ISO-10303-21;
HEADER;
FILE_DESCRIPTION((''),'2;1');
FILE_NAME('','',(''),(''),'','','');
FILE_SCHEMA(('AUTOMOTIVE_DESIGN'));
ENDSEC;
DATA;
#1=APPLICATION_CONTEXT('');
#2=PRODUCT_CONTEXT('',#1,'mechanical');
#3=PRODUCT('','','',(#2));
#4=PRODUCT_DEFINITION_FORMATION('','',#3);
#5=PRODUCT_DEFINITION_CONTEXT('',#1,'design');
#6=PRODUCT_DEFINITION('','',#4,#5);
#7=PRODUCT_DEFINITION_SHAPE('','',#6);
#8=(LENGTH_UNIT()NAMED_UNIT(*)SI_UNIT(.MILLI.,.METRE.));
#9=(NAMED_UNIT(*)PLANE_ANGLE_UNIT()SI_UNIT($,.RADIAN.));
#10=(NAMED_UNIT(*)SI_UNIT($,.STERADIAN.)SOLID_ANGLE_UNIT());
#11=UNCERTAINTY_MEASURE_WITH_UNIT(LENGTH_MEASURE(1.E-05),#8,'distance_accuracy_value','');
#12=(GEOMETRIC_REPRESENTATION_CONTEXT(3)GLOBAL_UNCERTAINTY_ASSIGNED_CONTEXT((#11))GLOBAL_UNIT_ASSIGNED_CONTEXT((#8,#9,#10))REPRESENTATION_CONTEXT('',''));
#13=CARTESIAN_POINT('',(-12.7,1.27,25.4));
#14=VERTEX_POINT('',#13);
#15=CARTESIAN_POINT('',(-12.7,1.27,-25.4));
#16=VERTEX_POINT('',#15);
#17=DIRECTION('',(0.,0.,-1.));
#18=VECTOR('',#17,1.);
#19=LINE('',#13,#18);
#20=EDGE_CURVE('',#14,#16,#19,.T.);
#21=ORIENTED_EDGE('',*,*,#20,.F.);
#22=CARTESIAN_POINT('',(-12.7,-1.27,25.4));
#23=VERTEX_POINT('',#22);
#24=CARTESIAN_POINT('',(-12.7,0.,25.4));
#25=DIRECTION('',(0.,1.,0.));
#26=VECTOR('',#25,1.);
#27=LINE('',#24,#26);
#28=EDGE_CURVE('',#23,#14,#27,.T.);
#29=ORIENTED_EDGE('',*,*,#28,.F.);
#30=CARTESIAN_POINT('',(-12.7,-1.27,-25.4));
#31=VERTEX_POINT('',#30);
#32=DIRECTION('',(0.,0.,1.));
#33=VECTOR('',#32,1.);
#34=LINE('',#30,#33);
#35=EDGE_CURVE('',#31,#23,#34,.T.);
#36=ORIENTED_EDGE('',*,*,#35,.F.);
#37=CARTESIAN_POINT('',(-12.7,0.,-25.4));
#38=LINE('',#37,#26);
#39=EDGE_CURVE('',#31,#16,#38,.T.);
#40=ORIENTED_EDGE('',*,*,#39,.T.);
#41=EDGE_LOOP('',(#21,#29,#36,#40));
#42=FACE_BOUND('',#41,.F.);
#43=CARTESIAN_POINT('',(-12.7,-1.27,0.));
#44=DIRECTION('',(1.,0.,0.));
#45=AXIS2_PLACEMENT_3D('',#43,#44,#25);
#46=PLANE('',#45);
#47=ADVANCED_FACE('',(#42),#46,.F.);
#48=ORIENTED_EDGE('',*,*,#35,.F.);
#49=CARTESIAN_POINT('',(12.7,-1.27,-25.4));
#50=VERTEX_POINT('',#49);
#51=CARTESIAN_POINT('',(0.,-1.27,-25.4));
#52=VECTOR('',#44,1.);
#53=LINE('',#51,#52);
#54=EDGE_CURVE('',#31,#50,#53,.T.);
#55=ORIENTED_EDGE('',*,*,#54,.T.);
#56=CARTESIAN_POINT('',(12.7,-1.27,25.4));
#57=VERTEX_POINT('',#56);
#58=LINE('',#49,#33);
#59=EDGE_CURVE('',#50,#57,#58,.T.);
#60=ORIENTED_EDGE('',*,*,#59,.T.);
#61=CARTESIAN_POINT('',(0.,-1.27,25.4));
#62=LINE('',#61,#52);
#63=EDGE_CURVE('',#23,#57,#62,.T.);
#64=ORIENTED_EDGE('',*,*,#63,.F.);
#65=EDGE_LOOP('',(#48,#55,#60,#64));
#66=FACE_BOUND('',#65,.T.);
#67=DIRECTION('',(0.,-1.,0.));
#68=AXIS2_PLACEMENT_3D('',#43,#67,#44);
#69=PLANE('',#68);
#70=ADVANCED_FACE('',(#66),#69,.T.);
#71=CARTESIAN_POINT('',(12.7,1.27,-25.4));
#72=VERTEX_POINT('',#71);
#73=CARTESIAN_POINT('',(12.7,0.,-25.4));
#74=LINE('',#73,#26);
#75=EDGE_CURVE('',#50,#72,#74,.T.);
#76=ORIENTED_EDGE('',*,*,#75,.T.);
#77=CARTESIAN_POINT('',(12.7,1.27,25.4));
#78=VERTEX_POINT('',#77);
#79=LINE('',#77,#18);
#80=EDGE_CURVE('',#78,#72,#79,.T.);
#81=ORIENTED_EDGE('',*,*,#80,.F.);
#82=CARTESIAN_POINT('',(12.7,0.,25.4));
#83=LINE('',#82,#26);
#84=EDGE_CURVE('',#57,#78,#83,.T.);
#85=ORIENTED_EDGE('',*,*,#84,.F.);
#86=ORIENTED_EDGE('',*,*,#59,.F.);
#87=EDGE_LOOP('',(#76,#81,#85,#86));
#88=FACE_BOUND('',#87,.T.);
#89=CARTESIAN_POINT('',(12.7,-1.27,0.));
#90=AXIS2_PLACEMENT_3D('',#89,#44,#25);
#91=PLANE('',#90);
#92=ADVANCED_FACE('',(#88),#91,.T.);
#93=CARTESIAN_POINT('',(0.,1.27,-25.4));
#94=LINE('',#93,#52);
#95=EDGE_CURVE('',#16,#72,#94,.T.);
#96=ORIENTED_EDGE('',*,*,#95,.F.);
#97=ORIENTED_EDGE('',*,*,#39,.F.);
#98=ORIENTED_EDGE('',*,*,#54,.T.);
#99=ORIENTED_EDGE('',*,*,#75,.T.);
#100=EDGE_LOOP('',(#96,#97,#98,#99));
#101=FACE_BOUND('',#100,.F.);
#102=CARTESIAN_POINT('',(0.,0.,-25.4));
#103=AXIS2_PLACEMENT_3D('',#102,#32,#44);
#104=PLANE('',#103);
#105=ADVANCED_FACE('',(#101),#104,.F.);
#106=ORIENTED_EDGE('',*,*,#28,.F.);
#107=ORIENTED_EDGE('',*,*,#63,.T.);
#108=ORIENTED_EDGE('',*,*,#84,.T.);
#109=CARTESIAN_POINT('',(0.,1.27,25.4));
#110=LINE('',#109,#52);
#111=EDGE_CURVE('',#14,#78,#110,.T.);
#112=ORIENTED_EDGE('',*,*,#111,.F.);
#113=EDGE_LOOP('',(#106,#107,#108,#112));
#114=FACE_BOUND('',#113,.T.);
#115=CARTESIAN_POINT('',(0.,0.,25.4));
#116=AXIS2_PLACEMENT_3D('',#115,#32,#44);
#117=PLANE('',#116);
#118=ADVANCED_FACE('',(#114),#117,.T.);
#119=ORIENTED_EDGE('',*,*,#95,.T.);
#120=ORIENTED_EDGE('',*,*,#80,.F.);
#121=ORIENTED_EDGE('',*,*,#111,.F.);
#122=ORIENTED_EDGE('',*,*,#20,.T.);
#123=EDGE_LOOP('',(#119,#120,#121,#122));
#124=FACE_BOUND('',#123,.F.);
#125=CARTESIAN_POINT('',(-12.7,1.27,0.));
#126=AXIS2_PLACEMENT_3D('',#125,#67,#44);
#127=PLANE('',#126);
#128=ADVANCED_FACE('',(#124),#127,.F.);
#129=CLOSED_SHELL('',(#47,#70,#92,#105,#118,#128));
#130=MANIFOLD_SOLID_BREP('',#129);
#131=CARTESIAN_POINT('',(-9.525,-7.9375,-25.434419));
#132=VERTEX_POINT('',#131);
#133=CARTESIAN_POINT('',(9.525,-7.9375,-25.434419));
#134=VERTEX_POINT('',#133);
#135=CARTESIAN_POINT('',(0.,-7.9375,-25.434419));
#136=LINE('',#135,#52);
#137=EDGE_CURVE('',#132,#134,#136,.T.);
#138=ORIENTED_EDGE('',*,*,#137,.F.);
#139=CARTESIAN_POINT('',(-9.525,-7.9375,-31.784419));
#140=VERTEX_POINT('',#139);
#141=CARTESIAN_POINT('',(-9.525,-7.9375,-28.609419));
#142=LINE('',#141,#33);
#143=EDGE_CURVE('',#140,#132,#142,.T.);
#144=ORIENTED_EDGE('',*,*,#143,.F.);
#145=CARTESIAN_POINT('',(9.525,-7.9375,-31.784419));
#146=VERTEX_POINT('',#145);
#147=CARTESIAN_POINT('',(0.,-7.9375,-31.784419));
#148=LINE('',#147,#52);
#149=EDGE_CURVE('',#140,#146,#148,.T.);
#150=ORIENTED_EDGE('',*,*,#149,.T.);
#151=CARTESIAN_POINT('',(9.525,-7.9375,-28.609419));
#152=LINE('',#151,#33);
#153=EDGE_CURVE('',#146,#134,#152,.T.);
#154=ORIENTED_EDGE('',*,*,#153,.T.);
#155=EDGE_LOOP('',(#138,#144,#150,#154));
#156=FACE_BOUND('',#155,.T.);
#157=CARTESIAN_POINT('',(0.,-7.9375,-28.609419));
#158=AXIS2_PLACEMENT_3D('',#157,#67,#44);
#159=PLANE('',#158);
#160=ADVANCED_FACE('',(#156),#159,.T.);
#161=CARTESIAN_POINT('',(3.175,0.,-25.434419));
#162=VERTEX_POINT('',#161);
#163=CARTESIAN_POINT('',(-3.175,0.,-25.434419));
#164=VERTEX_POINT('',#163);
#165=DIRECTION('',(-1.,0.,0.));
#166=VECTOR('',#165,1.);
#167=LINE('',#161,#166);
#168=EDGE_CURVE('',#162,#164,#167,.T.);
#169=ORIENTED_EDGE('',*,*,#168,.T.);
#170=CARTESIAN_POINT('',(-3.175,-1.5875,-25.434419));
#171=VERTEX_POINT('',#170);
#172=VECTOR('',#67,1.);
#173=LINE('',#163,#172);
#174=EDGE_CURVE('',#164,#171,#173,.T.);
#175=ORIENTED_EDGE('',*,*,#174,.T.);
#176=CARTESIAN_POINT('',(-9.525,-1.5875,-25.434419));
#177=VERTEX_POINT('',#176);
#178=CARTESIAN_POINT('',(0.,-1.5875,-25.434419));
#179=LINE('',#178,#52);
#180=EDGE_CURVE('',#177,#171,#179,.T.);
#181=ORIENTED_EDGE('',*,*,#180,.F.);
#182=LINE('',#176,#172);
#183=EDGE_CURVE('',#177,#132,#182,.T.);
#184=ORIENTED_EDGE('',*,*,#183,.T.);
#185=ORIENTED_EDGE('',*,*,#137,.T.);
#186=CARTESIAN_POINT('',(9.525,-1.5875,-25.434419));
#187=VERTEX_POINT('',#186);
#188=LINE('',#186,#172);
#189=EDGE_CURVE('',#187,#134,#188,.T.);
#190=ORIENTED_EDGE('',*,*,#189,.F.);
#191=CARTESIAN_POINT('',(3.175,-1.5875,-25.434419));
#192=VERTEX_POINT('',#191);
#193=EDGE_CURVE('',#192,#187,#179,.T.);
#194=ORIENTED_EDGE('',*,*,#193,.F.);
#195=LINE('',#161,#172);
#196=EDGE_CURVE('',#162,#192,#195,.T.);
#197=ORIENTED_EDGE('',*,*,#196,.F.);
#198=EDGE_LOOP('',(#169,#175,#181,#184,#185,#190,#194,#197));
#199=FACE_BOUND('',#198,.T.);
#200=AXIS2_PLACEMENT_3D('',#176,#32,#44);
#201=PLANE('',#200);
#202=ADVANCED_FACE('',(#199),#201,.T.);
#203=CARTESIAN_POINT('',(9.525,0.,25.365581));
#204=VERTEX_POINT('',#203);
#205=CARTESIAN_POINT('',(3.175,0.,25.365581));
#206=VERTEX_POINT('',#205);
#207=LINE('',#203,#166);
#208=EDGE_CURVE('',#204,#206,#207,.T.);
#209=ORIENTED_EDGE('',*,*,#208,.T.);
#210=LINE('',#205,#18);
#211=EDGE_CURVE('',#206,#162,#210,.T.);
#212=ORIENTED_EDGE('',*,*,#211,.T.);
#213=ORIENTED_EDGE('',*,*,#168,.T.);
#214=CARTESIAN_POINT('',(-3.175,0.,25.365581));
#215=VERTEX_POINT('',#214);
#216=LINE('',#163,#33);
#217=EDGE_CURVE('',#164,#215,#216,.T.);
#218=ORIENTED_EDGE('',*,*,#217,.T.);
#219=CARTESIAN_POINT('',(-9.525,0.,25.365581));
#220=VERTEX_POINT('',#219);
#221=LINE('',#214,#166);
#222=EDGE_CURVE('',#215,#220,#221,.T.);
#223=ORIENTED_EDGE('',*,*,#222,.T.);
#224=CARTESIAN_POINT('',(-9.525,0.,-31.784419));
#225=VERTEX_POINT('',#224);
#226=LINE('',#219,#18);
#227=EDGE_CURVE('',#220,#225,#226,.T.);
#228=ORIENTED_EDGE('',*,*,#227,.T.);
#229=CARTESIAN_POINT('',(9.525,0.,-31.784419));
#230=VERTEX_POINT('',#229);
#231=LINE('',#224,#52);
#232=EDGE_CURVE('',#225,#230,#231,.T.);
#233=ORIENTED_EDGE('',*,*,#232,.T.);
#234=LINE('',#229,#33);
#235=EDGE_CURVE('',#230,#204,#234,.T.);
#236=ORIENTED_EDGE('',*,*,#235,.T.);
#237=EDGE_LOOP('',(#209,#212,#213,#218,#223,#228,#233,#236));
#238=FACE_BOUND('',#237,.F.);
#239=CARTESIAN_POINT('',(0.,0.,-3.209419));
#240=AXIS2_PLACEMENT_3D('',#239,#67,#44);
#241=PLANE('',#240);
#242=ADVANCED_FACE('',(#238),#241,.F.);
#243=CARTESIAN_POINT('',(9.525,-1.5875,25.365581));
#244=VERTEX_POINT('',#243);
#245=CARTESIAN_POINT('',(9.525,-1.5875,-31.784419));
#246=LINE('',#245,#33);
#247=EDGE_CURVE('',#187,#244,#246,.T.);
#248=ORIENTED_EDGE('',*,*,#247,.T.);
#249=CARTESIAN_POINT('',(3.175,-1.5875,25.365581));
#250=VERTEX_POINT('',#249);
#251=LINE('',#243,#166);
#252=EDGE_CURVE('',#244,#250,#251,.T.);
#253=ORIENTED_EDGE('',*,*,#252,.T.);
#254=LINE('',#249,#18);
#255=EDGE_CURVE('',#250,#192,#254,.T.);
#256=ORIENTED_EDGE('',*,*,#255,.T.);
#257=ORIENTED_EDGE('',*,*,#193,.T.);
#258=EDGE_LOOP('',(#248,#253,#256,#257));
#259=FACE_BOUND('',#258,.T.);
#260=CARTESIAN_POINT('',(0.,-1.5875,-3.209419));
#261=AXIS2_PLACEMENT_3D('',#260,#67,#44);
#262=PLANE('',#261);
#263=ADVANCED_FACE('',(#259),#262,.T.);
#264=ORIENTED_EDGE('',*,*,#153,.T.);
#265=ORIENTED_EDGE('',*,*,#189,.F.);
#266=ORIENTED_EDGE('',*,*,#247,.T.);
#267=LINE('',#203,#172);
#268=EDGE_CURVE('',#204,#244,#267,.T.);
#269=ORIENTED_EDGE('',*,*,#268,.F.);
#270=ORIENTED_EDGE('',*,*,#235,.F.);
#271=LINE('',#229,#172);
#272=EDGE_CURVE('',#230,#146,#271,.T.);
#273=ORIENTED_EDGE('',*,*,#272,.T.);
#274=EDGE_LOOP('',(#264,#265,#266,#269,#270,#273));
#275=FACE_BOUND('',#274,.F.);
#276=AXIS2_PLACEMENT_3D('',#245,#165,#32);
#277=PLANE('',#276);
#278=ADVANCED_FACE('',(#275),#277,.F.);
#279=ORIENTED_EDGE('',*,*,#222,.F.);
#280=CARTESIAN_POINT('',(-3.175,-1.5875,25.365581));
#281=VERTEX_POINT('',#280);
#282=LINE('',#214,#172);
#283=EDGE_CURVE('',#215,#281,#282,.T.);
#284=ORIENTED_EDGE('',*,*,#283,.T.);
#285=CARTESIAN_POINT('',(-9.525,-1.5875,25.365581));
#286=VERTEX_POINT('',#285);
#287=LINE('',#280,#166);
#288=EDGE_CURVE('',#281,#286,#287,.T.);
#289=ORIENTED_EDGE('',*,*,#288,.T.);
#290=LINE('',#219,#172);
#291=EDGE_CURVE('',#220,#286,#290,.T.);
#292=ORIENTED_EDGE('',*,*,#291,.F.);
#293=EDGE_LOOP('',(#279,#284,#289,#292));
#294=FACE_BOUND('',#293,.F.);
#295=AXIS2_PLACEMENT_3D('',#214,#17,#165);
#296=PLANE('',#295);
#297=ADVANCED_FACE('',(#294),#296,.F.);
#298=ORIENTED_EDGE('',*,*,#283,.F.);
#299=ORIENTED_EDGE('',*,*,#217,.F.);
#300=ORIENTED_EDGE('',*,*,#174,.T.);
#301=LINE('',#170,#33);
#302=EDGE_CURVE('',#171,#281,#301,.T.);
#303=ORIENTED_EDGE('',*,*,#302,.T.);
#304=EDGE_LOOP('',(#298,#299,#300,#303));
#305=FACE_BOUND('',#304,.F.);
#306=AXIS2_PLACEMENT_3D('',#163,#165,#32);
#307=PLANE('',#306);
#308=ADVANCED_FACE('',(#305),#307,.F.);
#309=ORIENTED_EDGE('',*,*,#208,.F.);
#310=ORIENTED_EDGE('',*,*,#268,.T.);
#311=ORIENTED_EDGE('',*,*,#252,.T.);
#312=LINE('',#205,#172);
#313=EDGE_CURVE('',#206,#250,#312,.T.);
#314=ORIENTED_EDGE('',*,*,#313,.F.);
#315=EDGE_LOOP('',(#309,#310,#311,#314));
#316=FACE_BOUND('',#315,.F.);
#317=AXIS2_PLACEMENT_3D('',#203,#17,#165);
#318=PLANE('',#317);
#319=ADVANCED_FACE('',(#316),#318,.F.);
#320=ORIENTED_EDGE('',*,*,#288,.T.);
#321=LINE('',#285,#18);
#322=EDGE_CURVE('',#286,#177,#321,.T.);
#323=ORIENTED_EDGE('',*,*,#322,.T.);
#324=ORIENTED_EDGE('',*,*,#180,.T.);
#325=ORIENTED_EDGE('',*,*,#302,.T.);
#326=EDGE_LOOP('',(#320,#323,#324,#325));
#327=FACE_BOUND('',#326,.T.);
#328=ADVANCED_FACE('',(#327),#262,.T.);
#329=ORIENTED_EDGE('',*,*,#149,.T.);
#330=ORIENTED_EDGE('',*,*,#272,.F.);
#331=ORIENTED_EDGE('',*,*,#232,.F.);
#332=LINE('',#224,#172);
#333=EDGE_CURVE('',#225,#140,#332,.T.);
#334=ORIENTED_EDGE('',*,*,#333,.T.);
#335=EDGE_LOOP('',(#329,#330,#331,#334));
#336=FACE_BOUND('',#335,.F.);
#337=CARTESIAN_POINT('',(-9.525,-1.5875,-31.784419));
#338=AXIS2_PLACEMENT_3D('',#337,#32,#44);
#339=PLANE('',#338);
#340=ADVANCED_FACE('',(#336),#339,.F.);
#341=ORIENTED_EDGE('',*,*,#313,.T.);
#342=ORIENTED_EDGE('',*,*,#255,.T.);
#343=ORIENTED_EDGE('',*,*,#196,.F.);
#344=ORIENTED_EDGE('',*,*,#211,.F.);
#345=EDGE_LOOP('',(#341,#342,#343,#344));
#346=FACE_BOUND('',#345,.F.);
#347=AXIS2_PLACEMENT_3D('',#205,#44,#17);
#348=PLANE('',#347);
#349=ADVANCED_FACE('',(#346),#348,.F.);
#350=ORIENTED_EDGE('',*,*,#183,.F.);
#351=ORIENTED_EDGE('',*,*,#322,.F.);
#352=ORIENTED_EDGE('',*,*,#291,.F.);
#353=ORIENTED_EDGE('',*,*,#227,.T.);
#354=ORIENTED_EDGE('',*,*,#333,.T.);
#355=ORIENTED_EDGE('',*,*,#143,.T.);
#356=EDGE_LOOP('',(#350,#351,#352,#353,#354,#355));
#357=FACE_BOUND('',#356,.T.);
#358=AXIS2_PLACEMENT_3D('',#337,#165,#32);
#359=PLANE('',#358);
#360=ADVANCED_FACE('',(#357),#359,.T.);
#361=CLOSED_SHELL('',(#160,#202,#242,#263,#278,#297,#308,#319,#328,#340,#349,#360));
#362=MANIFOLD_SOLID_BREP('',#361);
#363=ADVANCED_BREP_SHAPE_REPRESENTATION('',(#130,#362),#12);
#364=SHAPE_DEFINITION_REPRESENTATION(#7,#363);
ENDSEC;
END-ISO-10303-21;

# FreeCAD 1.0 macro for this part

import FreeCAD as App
import Part
import Sketcher
from FreeCAD import Vector
Q = App.Units.Quantity

doc = App.newDocument("Part")
body = doc.addObject("PartDesign::Body", "Body")

sketch1 = body.newObject("Sketcher::SketchObject", "Sketch")
sketch1.AttachmentSupport = (doc.getObject("XY_Plane"), [""])
sketch1.MapMode = "FlatFace"
sketch1.addGeometry(Part.LineSegment(Vector(-12.7, 1.3, 0), Vector(-12.7, -1.3, 0)), False)
sketch1.addGeometry(Part.LineSegment(Vector(-12.7, -1.3, 0), Vector(12.7, -1.3, 0)), False)
sketch1.addGeometry(Part.LineSegment(Vector(12.7, -1.3, 0), Vector(12.7, 1.3, 0)), False)
sketch1.addGeometry(Part.LineSegment(Vector(12.7, 1.3, 0), Vector(-12.7, 1.3, 0)), False)
sketch1.addConstraint(Sketcher.Constraint("Coincident", 0, 2, 1, 1))
sketch1.addConstraint(Sketcher.Constraint("Coincident", 1, 2, 2, 1))
sketch1.addConstraint(Sketcher.Constraint("Coincident", 2, 2, 3, 1))
sketch1.addConstraint(Sketcher.Constraint("Coincident", 3, 2, 0, 1))
sketch1.addConstraint(Sketcher.Constraint("Vertical", 0))
sketch1.addConstraint(Sketcher.Constraint("Horizontal", 1))
sketch1.addConstraint(Sketcher.Constraint("Vertical", 2))
sketch1.addConstraint(Sketcher.Constraint("Horizontal", 3))
sketch1.addConstraint(Sketcher.Constraint("Symmetric", 0, 2, 2, 2, -1, 1))
sketch1.addConstraint(Sketcher.Constraint("DistanceX", 1, 1, 1, 2, Q("1 in")))
sketch1.addConstraint(Sketcher.Constraint("DistanceY", 0, 2, 0, 1, Q("0.1 in")))
pad1 = body.newObject("PartDesign::Pad", "Pad")
pad1.Profile = sketch1
pad1.Length = Q("2 in")
pad1.Midplane = True
body2 = doc.addObject("PartDesign::Body", "Body001")

sketch2 = body2.newObject("Sketcher::SketchObject", "Sketch001")
sketch2.AttachmentSupport = (doc.getObject("XZ_Plane001"), [""])
sketch2.MapMode = "FlatFace"
sketch2.addGeometry(Part.LineSegment(Vector(-3, 25, 0), Vector(-10, 25, 0)), False)
sketch2.addGeometry(Part.LineSegment(Vector(-10, 25, 0), Vector(-10, -32, 0)), False)
sketch2.addGeometry(Part.LineSegment(Vector(-10, -32, 0), Vector(10, -32, 0)), False)
sketch2.addGeometry(Part.LineSegment(Vector(10, -32, 0), Vector(10, 25, 0)), False)
sketch2.addGeometry(Part.LineSegment(Vector(10, 25, 0), Vector(3, 25, 0)), False)
sketch2.addGeometry(Part.LineSegment(Vector(3, 25, 0), Vector(3, -25, 0)), False)
sketch2.addGeometry(Part.LineSegment(Vector(3, -25, 0), Vector(-3, -25, 0)), False)
sketch2.addGeometry(Part.LineSegment(Vector(-3, -25, 0), Vector(-3, 25, 0)), False)
sketch2.addConstraint(Sketcher.Constraint("Coincident", 0, 2, 1, 1))
sketch2.addConstraint(Sketcher.Constraint("Coincident", 1, 2, 2, 1))
sketch2.addConstraint(Sketcher.Constraint("Coincident", 2, 2, 3, 1))
sketch2.addConstraint(Sketcher.Constraint("Coincident", 3, 2, 4, 1))
sketch2.addConstraint(Sketcher.Constraint("Coincident", 4, 2, 5, 1))
sketch2.addConstraint(Sketcher.Constraint("Coincident", 5, 2, 6, 1))
sketch2.addConstraint(Sketcher.Constraint("Coincident", 6, 2, 7, 1))
sketch2.addConstraint(Sketcher.Constraint("Coincident", 7, 2, 0, 1))
sketch2.addConstraint(Sketcher.Constraint("Horizontal", 0))
sketch2.addConstraint(Sketcher.Constraint("Vertical", 1))
sketch2.addConstraint(Sketcher.Constraint("Horizontal", 2))
sketch2.addConstraint(Sketcher.Constraint("Vertical", 3))
sketch2.addConstraint(Sketcher.Constraint("Horizontal", 4))
sketch2.addConstraint(Sketcher.Constraint("Vertical", 5))
sketch2.addConstraint(Sketcher.Constraint("Horizontal", 6))
sketch2.addConstraint(Sketcher.Constraint("Vertical", 7))
sketch2.addConstraint(Sketcher.Constraint("Symmetric", 0, 2, 3, 2, -2))
sketch2.addConstraint(Sketcher.Constraint("Equal", 0, 4))
sketch2.addConstraint(Sketcher.Constraint("Equal", 4, 6))
sketch2.addConstraint(Sketcher.Constraint("DistanceY", 5, 2, 5, 1, Q("2 in")))
sketch2.addConstraint(Sketcher.Constraint("DistanceX", 0, 2, 0, 1, Q("0.25 in")))
sketch2.addConstraint(Sketcher.Constraint("DistanceY", 1, 2, 1, 1, Q("2.25 in")))
sketch2.addConstraint(Sketcher.Constraint("DistanceY", -1, 1, 0, 2, 25.365581))
pad2 = body2.newObject("PartDesign::Pad", "Pad001")
pad2.Profile = sketch2
pad2.Length = Q("0.0625 in")

sketch3 = body2.newObject("Sketcher::SketchObject", "Sketch002")
sketch3.AttachmentSupport = (doc.getObject("XZ_Plane001"), [""])
sketch3.MapMode = "FlatFace"
sketch3.AttachmentOffset = App.Placement(Vector(0, 0, 0.0625 * 25.4), App.Rotation())
sketch3.addGeometry(Part.LineSegment(Vector(-10, -25, 0), Vector(-10, -32, 0)), False)
sketch3.addGeometry(Part.LineSegment(Vector(-10, -32, 0), Vector(10, -32, 0)), False)
sketch3.addGeometry(Part.LineSegment(Vector(10, -32, 0), Vector(10, -25, 0)), False)
sketch3.addGeometry(Part.LineSegment(Vector(10, -25, 0), Vector(-10, -25, 0)), False)
sketch3.addConstraint(Sketcher.Constraint("Coincident", 0, 2, 1, 1))
sketch3.addConstraint(Sketcher.Constraint("Coincident", 1, 2, 2, 1))
sketch3.addConstraint(Sketcher.Constraint("Coincident", 2, 2, 3, 1))
sketch3.addConstraint(Sketcher.Constraint("Coincident", 3, 2, 0, 1))
sketch3.addConstraint(Sketcher.Constraint("Vertical", 0))
sketch3.addConstraint(Sketcher.Constraint("Horizontal", 1))
sketch3.addConstraint(Sketcher.Constraint("Vertical", 2))
sketch3.addConstraint(Sketcher.Constraint("Horizontal", 3))
sketch3.addConstraint(Sketcher.Constraint("DistanceX", 1, 1, 1, 2, Q("0.75 in")))
sketch3.addConstraint(Sketcher.Constraint("DistanceY", 0, 2, 0, 1, Q("0.25 in")))
sketch3.addConstraint(Sketcher.Constraint("DistanceX", 0, 2, -1, 1, Q("0.375 in")))
sketch3.addConstraint(Sketcher.Constraint("DistanceY", 0, 2, -1, 1, 31.784419))
pad3 = body2.newObject("PartDesign::Pad", "Pad002")
pad3.Profile = sketch3
pad3.Length = Q("0.25 in")

doc.recompute()
